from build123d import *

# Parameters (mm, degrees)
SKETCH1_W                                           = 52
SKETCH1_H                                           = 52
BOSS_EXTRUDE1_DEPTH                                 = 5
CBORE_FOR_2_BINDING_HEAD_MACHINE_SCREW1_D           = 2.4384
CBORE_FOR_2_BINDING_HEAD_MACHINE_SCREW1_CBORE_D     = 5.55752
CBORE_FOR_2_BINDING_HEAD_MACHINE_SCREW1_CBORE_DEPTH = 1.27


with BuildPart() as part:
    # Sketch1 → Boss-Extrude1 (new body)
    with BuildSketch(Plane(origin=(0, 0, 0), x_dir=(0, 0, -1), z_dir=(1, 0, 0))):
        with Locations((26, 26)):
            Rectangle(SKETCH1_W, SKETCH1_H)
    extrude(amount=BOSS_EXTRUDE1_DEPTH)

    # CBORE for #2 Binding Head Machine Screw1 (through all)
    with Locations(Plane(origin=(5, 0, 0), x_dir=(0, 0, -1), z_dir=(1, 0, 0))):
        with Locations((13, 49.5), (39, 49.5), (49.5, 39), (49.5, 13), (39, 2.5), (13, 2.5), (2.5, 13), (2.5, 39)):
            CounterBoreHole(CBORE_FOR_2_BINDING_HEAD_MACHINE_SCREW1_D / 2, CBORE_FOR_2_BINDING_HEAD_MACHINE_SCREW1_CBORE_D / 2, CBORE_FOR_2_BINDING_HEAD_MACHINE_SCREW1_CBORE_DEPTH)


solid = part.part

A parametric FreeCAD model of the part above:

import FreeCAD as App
import Part
import Sketcher

V = App.Vector

doc = App.newDocument("Part")
body = doc.addObject("PartDesign::Body", "Body")

# Sketch on YZ plane
sketch1 = doc.addObject("Sketcher::SketchObject", "Sketch")
body.addObject(sketch1)
sketch1.AttachmentSupport = (doc.YZ_Plane, [""])
sketch1.MapMode = "FlatFace"
sketch1.addGeometry([
    Part.LineSegment(V(52, 0, 0), V(0, 0, 0)),
    Part.LineSegment(V(0, 0, 0), V(0, -52, 0)),
    Part.LineSegment(V(0, -52, 0), V(52, -52, 0)),
    Part.LineSegment(V(52, -52, 0), V(52, 0, 0)),
], False)
sketch1.addConstraint([
    Sketcher.Constraint("Coincident", 0, 2, 1, 1),
    Sketcher.Constraint("Coincident", 1, 2, 2, 1),
    Sketcher.Constraint("Coincident", 2, 2, 3, 1),
    Sketcher.Constraint("Coincident", 3, 2, 0, 1),
    Sketcher.Constraint("Horizontal", 0),
    Sketcher.Constraint("Vertical", 1),
    Sketcher.Constraint("Horizontal", 2),
    Sketcher.Constraint("Vertical", 3),
    Sketcher.Constraint("Coincident", 0, 2, -1, 1),
    Sketcher.Constraint("Equal", 2, 1),
    Sketcher.Constraint("DistanceX", 0, 2, 0, 1, 52.0),
])
pad1 = doc.addObject("PartDesign::Pad", "Pad")
body.addObject(pad1)
pad1.Profile = sketch1
pad1.Length = 5

# Sketch on YZ plane
sketch2 = doc.addObject("Sketcher::SketchObject", "Sketch001")
body.addObject(sketch2)
sketch2.AttachmentSupport = (doc.YZ_Plane, [""])
sketch2.MapMode = "FlatFace"
sketch2.AttachmentOffset = App.Placement(V(0, 0, 5), App.Rotation())
sketch2.addGeometry([
    Part.Circle(V(49.5, -13, 0), V(0, 0, 1), 1.2192),  # 0
    Part.Circle(V(49.5, -39, 0), V(0, 0, 1), 1.2192),  # 1
    Part.Circle(V(39, -49.5, 0), V(0, 0, 1), 1.2192),  # 2
    Part.Circle(V(13, -49.5, 0), V(0, 0, 1), 1.2192),  # 3
    Part.Circle(V(2.5, -39, 0), V(0, 0, 1), 1.2192),  # 4
    Part.Circle(V(2.5, -13, 0), V(0, 0, 1), 1.2192),  # 5
    Part.Circle(V(13, -2.5, 0), V(0, 0, 1), 1.2192),  # 6
    Part.Circle(V(39, -2.5, 0), V(0, 0, 1), 1.2192),  # 7
], False)
sketch2.addConstraint([
    Sketcher.Constraint("Equal", 0, 1),
    Sketcher.Constraint("Equal", 1, 2),
    Sketcher.Constraint("Equal", 2, 3),
    Sketcher.Constraint("Equal", 3, 4),
    Sketcher.Constraint("Equal", 4, 5),
    Sketcher.Constraint("Equal", 5, 6),
    Sketcher.Constraint("Equal", 6, 7),
    Sketcher.Constraint("Horizontal", 2, 3, 3, 3),
    Sketcher.Constraint("Horizontal", 1, 3, 4, 3),
    Sketcher.Constraint("Horizontal", 0, 3, 5, 3),
    Sketcher.Constraint("Horizontal", 6, 3, 7, 3),
    Sketcher.Constraint("Vertical", 0, 3, 1, 3),
    Sketcher.Constraint("Vertical", 4, 3, 5, 3),
    Sketcher.Constraint("Vertical", 3, 3, 6, 3),
    Sketcher.Constraint("Vertical", 2, 3, 7, 3),
    Sketcher.Constraint("DistanceY", 0, 3, -1, 1, 13.0),
    Sketcher.Constraint("DistanceY", 1, 3, -1, 1, 39.0),
    Sketcher.Constraint("DistanceX", -1, 1, 2, 3, 39.0),
    Sketcher.Constraint("DistanceX", -1, 1, 3, 3, 13.0),
    Sketcher.Constraint("DistanceX", 4, 3, 1, 3, 47.0),
    Sketcher.Constraint("DistanceY", 3, 3, 6, 3, 47.0),
    Sketcher.Constraint("Diameter", 0, 2.4384),
    Sketcher.Constraint("DistanceX", -1, 1, 0, 3, 49.5),
    Sketcher.Constraint("DistanceY", 2, 3, -1, 1, 49.5),
])
doc.recompute()
hole = doc.addObject("PartDesign::Hole", "Hole")
body.addObject(hole)
hole.Profile = sketch2
hole.ThreadType = "None"
hole.Diameter = 2.4384
hole.DepthType = "ThroughAll"
hole.HoleCutType = "Counterbore"
hole.HoleCutDiameter = 5.55752
hole.HoleCutDepth = 1.27

doc.recompute()
